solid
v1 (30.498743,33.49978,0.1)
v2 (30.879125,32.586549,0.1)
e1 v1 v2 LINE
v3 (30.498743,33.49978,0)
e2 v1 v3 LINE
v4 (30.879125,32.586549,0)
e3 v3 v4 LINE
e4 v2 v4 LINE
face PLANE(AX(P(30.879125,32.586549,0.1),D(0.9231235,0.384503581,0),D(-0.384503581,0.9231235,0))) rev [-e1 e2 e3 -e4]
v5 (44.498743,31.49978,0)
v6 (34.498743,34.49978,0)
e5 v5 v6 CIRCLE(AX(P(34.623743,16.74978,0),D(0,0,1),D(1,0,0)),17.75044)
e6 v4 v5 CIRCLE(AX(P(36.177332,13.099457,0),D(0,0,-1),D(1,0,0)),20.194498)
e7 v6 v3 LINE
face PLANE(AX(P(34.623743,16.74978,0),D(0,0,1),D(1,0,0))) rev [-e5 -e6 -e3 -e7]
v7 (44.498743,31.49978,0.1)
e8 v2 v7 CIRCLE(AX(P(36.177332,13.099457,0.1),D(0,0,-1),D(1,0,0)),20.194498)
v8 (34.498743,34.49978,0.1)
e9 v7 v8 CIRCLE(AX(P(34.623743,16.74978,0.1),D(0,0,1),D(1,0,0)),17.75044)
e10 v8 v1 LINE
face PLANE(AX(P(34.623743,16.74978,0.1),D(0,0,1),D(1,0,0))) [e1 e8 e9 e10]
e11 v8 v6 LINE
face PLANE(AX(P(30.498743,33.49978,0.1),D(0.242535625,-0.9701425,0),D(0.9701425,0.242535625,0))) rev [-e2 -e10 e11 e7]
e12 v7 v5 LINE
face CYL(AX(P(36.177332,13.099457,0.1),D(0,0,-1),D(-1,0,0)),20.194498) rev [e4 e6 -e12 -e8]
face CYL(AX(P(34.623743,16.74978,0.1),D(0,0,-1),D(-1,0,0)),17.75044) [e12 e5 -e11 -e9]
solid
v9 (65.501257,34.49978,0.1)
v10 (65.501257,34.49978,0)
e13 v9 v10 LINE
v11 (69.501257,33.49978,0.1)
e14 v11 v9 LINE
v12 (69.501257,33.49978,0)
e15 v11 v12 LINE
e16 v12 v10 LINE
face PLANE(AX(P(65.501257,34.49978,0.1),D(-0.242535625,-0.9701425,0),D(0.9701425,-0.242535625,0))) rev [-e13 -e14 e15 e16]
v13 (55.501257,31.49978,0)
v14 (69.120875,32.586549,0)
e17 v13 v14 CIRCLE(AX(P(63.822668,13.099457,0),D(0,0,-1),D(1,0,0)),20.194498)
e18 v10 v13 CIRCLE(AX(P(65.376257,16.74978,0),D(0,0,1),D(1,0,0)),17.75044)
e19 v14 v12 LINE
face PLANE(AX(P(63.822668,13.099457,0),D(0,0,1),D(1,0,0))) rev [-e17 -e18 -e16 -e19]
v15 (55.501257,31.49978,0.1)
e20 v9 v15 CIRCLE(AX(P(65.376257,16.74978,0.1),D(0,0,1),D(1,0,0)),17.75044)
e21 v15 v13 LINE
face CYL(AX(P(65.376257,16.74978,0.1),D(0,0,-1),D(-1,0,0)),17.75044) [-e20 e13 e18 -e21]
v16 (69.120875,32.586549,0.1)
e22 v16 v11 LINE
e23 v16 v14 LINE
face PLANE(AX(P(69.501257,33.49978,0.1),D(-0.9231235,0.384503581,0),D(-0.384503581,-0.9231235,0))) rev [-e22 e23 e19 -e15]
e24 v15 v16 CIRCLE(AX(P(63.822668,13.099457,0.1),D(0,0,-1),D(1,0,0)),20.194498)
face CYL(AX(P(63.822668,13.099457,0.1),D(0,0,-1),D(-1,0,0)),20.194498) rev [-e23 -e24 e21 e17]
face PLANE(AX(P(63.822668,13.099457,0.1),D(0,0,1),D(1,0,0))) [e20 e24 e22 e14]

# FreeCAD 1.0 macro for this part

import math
import FreeCAD as App
import Part
import Sketcher

V = App.Vector

doc = App.newDocument("Part")
params = doc.addObject("Spreadsheet::Sheet", "Params")
for row, (alias, value) in enumerate([
    ("pad1_length", "0.1 mm"),
    ("pad2_length", "0.1 mm"),
], start=1):
    params.set(f"A{row}", alias)
    params.set(f"B{row}", "=" + value)
    params.setAlias(f"B{row}", alias)

body = doc.addObject("PartDesign::Body", "Body")

# Sketch on XY plane
sketch1 = body.newObject("Sketcher::SketchObject", "Sketch")
sketch1.AttachmentSupport = (doc.getObject("XY_Plane"), [""])
sketch1.MapMode = "FlatFace"
sketch1.addGeometry([
    Part.LineSegment(V(30.498743, 33.49978, 0), V(30.879125, 32.586549, 0)),
    Part.ArcOfCircle(Part.Circle(V(36.177332, 13.099457, 0), V(0, 0, 1), 20.194498), math.radians(65.665488), math.radians(105.210077)),
    Part.ArcOfCircle(Part.Circle(V(34.623743, 16.74978, 0), V(0, 0, 1), 17.75044), math.radians(56.198027), math.radians(90.403485)),
    Part.LineSegment(V(34.498743, 34.49978, 0), V(30.498743, 33.49978, 0)),
], False)
sketch1.addConstraint([
    Sketcher.Constraint("Coincident", 0, 2, 1, 2),
    Sketcher.Constraint("Coincident", 1, 1, 2, 1),
    Sketcher.Constraint("Coincident", 2, 2, 3, 1),
    Sketcher.Constraint("Coincident", 3, 2, 0, 1),
    Sketcher.Constraint("DistanceX", 2, 2, 1, 1, 10.0),
    Sketcher.Constraint("DistanceY", 1, 1, 2, 2, 3.0),
    Sketcher.Constraint("DistanceX", 3, 2, 2, 2, 4.0),
    Sketcher.Constraint("DistanceY", 3, 2, 2, 2, 1.0),
    Sketcher.Constraint("Radius", 1, 20.194498),
    Sketcher.Constraint("Radius", 2, 17.75044),
    Sketcher.Constraint("DistanceX", -1, 1, 1, 3, 36.177332),
    Sketcher.Constraint("DistanceY", -1, 1, 2, 3, 16.74978),
    Sketcher.Constraint("DistanceY", -1, 1, 0, 2, 32.586549),
    Sketcher.Constraint("DistanceX", 2, 3, 1, 3, 1.553589),
])
pad1 = body.newObject("PartDesign::Pad", "Pad")
pad1.Profile = sketch1
pad1.setExpression("Length", "Params.pad1_length")
body2 = doc.addObject("PartDesign::Body", "Body001")

# Sketch on XY plane
sketch2 = body2.newObject("Sketcher::SketchObject", "Sketch001")
sketch2.AttachmentSupport = (doc.getObject("XY_Plane001"), [""])
sketch2.MapMode = "FlatFace"
sketch2.addGeometry([
    Part.LineSegment(V(69.501257, 33.49978, 0), V(65.501257, 34.49978, 0)),
    Part.ArcOfCircle(Part.Circle(V(65.376257, 16.74978, 0), V(0, 0, 1), 17.75044), math.radians(89.596515), math.radians(123.801973)),
    Part.ArcOfCircle(Part.Circle(V(63.822668, 13.099457, 0), V(0, 0, 1), 20.194498), math.radians(74.789923), math.radians(114.334512)),
    Part.LineSegment(V(69.120875, 32.586549, 0), V(69.501257, 33.49978, 0)),
], False)
sketch2.addConstraint([
    Sketcher.Constraint("Coincident", 0, 2, 1, 1),
    Sketcher.Constraint("Coincident", 1, 2, 2, 2),
    Sketcher.Constraint("Coincident", 2, 1, 3, 1),
    Sketcher.Constraint("Coincident", 3, 2, 0, 1),
    Sketcher.Constraint("DistanceX", 1, 2, 0, 2, 10.0),
    Sketcher.Constraint("DistanceY", 1, 2, 0, 2, 3.0),
    Sketcher.Constraint("DistanceX", 0, 2, 3, 2, 4.0),
    Sketcher.Constraint("DistanceY", 3, 2, 0, 2, 1.0),
    Sketcher.Constraint("Radius", 2, 20.194498),
    Sketcher.Constraint("Radius", 1, 17.75044),
    Sketcher.Constraint("DistanceY", -1, 1, 1, 3, 16.74978),
    Sketcher.Constraint("DistanceX", -1, 1, 2, 3, 63.822668),
    Sketcher.Constraint("DistanceY", -1, 1, 2, 1, 32.586549),
    Sketcher.Constraint("DistanceX", 2, 3, 1, 3, 1.553589),
])
pad2 = body2.newObject("PartDesign::Pad", "Pad001")
pad2.Profile = sketch2
pad2.setExpression("Length", "Params.pad2_length")

doc.recompute()
